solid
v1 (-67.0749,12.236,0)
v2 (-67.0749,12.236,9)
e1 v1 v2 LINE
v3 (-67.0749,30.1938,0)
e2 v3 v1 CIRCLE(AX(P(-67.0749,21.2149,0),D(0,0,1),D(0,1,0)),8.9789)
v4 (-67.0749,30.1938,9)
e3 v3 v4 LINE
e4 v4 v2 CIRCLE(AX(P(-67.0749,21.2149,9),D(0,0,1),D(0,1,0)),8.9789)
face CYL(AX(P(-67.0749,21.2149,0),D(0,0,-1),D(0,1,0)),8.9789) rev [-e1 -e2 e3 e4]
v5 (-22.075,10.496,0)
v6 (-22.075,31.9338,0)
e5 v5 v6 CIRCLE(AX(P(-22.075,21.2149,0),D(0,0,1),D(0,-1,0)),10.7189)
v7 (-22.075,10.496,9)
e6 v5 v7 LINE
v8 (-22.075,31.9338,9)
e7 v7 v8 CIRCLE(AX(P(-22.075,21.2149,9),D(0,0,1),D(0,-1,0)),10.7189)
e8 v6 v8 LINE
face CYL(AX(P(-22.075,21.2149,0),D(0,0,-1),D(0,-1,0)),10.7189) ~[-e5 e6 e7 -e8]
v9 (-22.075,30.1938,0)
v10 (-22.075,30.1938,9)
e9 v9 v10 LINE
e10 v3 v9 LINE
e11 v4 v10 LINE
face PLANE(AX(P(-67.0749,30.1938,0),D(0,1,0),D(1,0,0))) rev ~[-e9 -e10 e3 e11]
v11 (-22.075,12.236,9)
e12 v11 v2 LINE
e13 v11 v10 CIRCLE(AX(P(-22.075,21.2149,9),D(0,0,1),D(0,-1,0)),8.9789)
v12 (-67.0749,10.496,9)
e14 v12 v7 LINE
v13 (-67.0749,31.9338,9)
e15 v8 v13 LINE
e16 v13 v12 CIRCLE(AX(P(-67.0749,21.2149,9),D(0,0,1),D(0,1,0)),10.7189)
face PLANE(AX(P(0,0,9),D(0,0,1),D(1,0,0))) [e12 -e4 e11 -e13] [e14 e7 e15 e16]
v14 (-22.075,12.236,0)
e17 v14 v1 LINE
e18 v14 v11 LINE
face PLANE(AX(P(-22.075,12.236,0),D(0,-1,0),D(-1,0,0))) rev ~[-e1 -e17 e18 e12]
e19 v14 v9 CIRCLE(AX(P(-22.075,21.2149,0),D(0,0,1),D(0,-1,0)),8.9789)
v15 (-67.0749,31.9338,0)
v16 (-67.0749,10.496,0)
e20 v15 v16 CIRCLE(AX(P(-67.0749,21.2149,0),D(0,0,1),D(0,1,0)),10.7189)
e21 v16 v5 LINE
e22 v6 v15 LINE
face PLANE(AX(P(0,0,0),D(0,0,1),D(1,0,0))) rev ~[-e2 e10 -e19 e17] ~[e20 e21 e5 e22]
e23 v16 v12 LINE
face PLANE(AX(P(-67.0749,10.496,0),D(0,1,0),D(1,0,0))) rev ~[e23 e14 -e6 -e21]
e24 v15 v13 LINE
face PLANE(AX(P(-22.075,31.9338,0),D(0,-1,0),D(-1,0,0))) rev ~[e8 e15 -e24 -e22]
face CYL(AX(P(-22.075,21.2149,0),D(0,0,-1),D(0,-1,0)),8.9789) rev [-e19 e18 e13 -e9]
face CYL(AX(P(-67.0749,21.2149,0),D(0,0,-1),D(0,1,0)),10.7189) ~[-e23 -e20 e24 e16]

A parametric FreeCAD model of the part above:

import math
import FreeCAD as App
import Part
import Sketcher

V = App.Vector
Q = App.Units.Quantity

doc = App.newDocument("Part")
params = doc.addObject("Spreadsheet::Sheet", "Params")
for row, (alias, value) in enumerate([
    ("sketch1_width", "45 mm"),
    ("pad1_length", "9 mm"),
], start=1):
    params.set(f"A{row}", alias)
    params.set(f"B{row}", "=" + value)
    params.setAlias(f"B{row}", alias)

body = doc.addObject("PartDesign::Body", "Body")

# Sketch on XY plane
sketch1 = body.newObject("Sketcher::SketchObject", "Sketch")
sketch1.AttachmentSupport = (doc.getObject("XY_Plane"), [""])
sketch1.MapMode = "FlatFace"
sketch1.addGeometry(Part.ArcOfCircle(Part.Circle(V(-22.075, 21.2149, 0), V(0, 0, 1), 10.7189), math.radians(-90), math.radians(90)), False)
sketch1.addGeometry(Part.LineSegment(V(-22.075, 31.9338, 0), V(-67.0749, 31.9338, 0)), False)
sketch1.addGeometry(Part.ArcOfCircle(Part.Circle(V(-67.0749, 21.2149, 0), V(0, 0, 1), 10.7189), math.radians(90), math.radians(270)), False)
sketch1.addGeometry(Part.LineSegment(V(-67.0749, 10.496, 0), V(-22.075, 10.496, 0)), False)
sketch1.addGeometry(Part.ArcOfCircle(Part.Circle(V(-67.0749, 21.2149, 0), V(0, 0, 1), 8.9789), math.radians(90), math.radians(270)), False)
sketch1.addGeometry(Part.LineSegment(V(-67.0749, 30.1938, 0), V(-22.075, 30.1938, 0)), False)
sketch1.addGeometry(Part.ArcOfCircle(Part.Circle(V(-22.075, 21.2149, 0), V(0, 0, 1), 8.9789), math.radians(-90), math.radians(90)), False)
sketch1.addGeometry(Part.LineSegment(V(-22.075, 12.236, 0), V(-67.0749, 12.236, 0)), False)
sketch1.addConstraint(Sketcher.Constraint("Tangent", 0, 2, 1, 1))
sketch1.addConstraint(Sketcher.Constraint("Tangent", 1, 2, 2, 1))
sketch1.addConstraint(Sketcher.Constraint("Tangent", 2, 2, 3, 1))
sketch1.addConstraint(Sketcher.Constraint("Tangent", 3, 2, 0, 1))
sketch1.addConstraint(Sketcher.Constraint("Tangent", 4, 1, 5, 1))
sketch1.addConstraint(Sketcher.Constraint("Tangent", 5, 2, 6, 2))
sketch1.addConstraint(Sketcher.Constraint("Tangent", 6, 1, 7, 1))
sketch1.addConstraint(Sketcher.Constraint("Tangent", 7, 2, 4, 2))
sketch1.addConstraint(Sketcher.Constraint("Horizontal", 1))
sketch1.addConstraint(Sketcher.Constraint("Horizontal", 3))
sketch1.addConstraint(Sketcher.Constraint("Horizontal", 5))
sketch1.addConstraint(Sketcher.Constraint("Horizontal", 7))
sketch1.addConstraint(Sketcher.Constraint("Coincident", 4, 3, 2, 3))
sketch1.addConstraint(Sketcher.Constraint("Vertical", 6, 3, 0, 2))
sketch1.addConstraint(Sketcher.Constraint("DistanceX", 1, 2, 1, 1, Q("45 mm")))
sketch1.addConstraint(Sketcher.Constraint("Radius", 4, Q("8.979 mm")))
sketch1.addConstraint(Sketcher.Constraint("DistanceY", 4, 1, 1, 2, Q("1.74 mm")))
sketch1.addConstraint(Sketcher.Constraint("DistanceX", 0, 3, -1, 1, Q("22.075 mm")))
sketch1.addConstraint(Sketcher.Constraint("DistanceY", -1, 1, 0, 3, Q("21.215 mm")))
sketch1.setExpression("Constraints[14]", "Params.sketch1_width")
pad1 = body.newObject("PartDesign::Pad", "Pad")
pad1.Profile = sketch1
pad1.setExpression("Length", "Params.pad1_length")

doc.recompute()
